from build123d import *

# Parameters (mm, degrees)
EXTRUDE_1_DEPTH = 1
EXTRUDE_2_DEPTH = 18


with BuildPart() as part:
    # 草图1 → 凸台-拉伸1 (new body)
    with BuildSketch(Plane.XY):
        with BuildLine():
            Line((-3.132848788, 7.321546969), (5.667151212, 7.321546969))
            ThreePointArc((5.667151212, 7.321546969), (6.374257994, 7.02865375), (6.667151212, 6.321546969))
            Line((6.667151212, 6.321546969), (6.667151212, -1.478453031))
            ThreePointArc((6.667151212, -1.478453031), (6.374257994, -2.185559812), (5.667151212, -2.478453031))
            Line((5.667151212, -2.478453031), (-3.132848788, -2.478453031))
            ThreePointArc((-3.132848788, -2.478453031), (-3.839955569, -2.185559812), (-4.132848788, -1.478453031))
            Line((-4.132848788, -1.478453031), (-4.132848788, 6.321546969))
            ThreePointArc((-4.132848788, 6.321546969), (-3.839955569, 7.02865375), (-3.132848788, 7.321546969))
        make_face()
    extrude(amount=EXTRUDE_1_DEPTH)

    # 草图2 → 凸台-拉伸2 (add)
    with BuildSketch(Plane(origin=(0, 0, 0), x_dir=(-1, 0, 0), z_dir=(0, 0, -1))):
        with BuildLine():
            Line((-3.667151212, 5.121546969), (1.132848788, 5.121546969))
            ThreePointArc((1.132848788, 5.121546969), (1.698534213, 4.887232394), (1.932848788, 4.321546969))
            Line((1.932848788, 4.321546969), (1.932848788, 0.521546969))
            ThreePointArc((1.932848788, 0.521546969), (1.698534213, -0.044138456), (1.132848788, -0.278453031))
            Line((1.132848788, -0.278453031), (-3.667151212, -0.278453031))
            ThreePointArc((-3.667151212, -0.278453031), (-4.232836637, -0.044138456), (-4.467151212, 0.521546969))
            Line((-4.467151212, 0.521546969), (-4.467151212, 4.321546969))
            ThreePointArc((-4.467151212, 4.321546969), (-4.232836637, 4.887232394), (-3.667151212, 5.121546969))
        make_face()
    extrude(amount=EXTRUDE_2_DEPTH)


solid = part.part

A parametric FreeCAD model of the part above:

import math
import FreeCAD as App
import Part
import Sketcher
from FreeCAD import Vector

doc = App.newDocument("Part")
params = doc.addObject("Spreadsheet::Sheet", "Params")
for row, (alias, value) in enumerate([
    ("sketch1_radius", "1 mm"),
    ("sketch1_width", "8.8 mm"),
    ("sketch1_height", "7.8 mm"),
    ("pad1_length", "1 mm"),
    ("sketch2_radius", "0.8 mm"),
    ("sketch2_width", "4.8 mm"),
    ("sketch2_height", "3.8 mm"),
    ("pad2_length", "18 mm"),
], start=1):
    params.set(f"A{row}", alias)
    params.set(f"B{row}", "=" + value)
    params.setAlias(f"B{row}", alias)

body = doc.addObject("PartDesign::Body", "Body")

# Sketch on XY plane
sketch1 = body.newObject("Sketcher::SketchObject", "Sketch")
sketch1.AttachmentSupport = (doc.getObject("XY_Plane"), [""])
sketch1.MapMode = "FlatFace"
sketch1.addGeometry(Part.LineSegment(Vector(5.7, 7.3, 0), Vector(-3.1, 7.3, 0)), False)
sketch1.addGeometry(Part.ArcOfCircle(Part.Circle(Vector(-3.1, 6.3, 0), Vector(0, 0, 1), 1), math.radians(90), math.radians(180)), False)
sketch1.addGeometry(Part.LineSegment(Vector(-4.1, 6.3, 0), Vector(-4.1, -1.5, 0)), False)
sketch1.addGeometry(Part.ArcOfCircle(Part.Circle(Vector(-3.1, -1.5, 0), Vector(0, 0, 1), 1), math.radians(-180), math.radians(-90)), False)
sketch1.addGeometry(Part.LineSegment(Vector(-3.1, -2.5, 0), Vector(5.7, -2.5, 0)), False)
sketch1.addGeometry(Part.ArcOfCircle(Part.Circle(Vector(5.7, -1.5, 0), Vector(0, 0, 1), 1), math.radians(-90), math.radians(0)), False)
sketch1.addGeometry(Part.LineSegment(Vector(6.7, -1.5, 0), Vector(6.7, 6.3, 0)), False)
sketch1.addGeometry(Part.ArcOfCircle(Part.Circle(Vector(5.7, 6.3, 0), Vector(0, 0, 1), 1), math.radians(0), math.radians(90)), False)
sketch1.addConstraint(Sketcher.Constraint("Tangent", 0, 2, 1, 1))
sketch1.addConstraint(Sketcher.Constraint("Tangent", 1, 2, 2, 1))
sketch1.addConstraint(Sketcher.Constraint("Tangent", 2, 2, 3, 1))
sketch1.addConstraint(Sketcher.Constraint("Tangent", 3, 2, 4, 1))
sketch1.addConstraint(Sketcher.Constraint("Tangent", 4, 2, 5, 1))
sketch1.addConstraint(Sketcher.Constraint("Tangent", 5, 2, 6, 1))
sketch1.addConstraint(Sketcher.Constraint("Tangent", 6, 2, 7, 1))
sketch1.addConstraint(Sketcher.Constraint("Tangent", 7, 2, 0, 1))
sketch1.addConstraint(Sketcher.Constraint("Horizontal", 0))
sketch1.addConstraint(Sketcher.Constraint("Vertical", 2))
sketch1.addConstraint(Sketcher.Constraint("Horizontal", 4))
sketch1.addConstraint(Sketcher.Constraint("Vertical", 6))
sketch1.addConstraint(Sketcher.Constraint("Equal", 1, 3))
sketch1.addConstraint(Sketcher.Constraint("Equal", 3, 5))
sketch1.addConstraint(Sketcher.Constraint("Equal", 5, 7))
sketch1.addConstraint(Sketcher.Constraint("Radius", 1, 1.0))
sketch1.addConstraint(Sketcher.Constraint("DistanceX", 0, 2, 0, 1, 8.8))
sketch1.addConstraint(Sketcher.Constraint("DistanceY", 2, 2, 2, 1, 7.8))
sketch1.addConstraint(Sketcher.Constraint("DistanceX", 1, 3, -1, 1, 3.132849))
sketch1.addConstraint(Sketcher.Constraint("DistanceY", -1, 1, 1, 3, 6.321547))
sketch1.setExpression("Constraints[15]", "Params.sketch1_radius")
sketch1.setExpression("Constraints[16]", "Params.sketch1_width")
sketch1.setExpression("Constraints[17]", "Params.sketch1_height")
pad1 = body.newObject("PartDesign::Pad", "Pad")
pad1.Profile = sketch1
pad1.setExpression("Length", "Params.pad1_length")

# Sketch on XY plane
sketch2 = body.newObject("Sketcher::SketchObject", "Sketch001")
sketch2.AttachmentSupport = (doc.getObject("XY_Plane"), [""])
sketch2.MapMode = "FlatFace"
sketch2.addGeometry(Part.LineSegment(Vector(-1.1, 5.1, 0), Vector(3.7, 5.1, 0)), False)
sketch2.addGeometry(Part.ArcOfCircle(Part.Circle(Vector(3.7, 4.3, 0), Vector(0, 0, 1), 0.8), math.radians(0), math.radians(90)), False)
sketch2.addGeometry(Part.LineSegment(Vector(4.5, 4.3, 0), Vector(4.5, 0.5, 0)), False)
sketch2.addGeometry(Part.ArcOfCircle(Part.Circle(Vector(3.7, 0.5, 0), Vector(0, 0, 1), 0.8), math.radians(-90), math.radians(0)), False)
sketch2.addGeometry(Part.LineSegment(Vector(3.7, -0.3, 0), Vector(-1.1, -0.3, 0)), False)
sketch2.addGeometry(Part.ArcOfCircle(Part.Circle(Vector(-1.1, 0.5, 0), Vector(0, 0, 1), 0.8), math.radians(180), math.radians(270)), False)
sketch2.addGeometry(Part.LineSegment(Vector(-1.9, 0.5, 0), Vector(-1.9, 4.3, 0)), False)
sketch2.addGeometry(Part.ArcOfCircle(Part.Circle(Vector(-1.1, 4.3, 0), Vector(0, 0, 1), 0.8), math.radians(90), math.radians(180)), False)
sketch2.addConstraint(Sketcher.Constraint("Tangent", 0, 2, 1, 2))
sketch2.addConstraint(Sketcher.Constraint("Tangent", 1, 1, 2, 1))
sketch2.addConstraint(Sketcher.Constraint("Tangent", 2, 2, 3, 2))
sketch2.addConstraint(Sketcher.Constraint("Tangent", 3, 1, 4, 1))
sketch2.addConstraint(Sketcher.Constraint("Tangent", 4, 2, 5, 2))
sketch2.addConstraint(Sketcher.Constraint("Tangent", 5, 1, 6, 1))
sketch2.addConstraint(Sketcher.Constraint("Tangent", 6, 2, 7, 2))
sketch2.addConstraint(Sketcher.Constraint("Tangent", 7, 1, 0, 1))
sketch2.addConstraint(Sketcher.Constraint("Horizontal", 0))
sketch2.addConstraint(Sketcher.Constraint("Vertical", 2))
sketch2.addConstraint(Sketcher.Constraint("Horizontal", 4))
sketch2.addConstraint(Sketcher.Constraint("Vertical", 6))
sketch2.addConstraint(Sketcher.Constraint("Equal", 1, 3))
sketch2.addConstraint(Sketcher.Constraint("Equal", 3, 5))
sketch2.addConstraint(Sketcher.Constraint("Equal", 5, 7))
sketch2.addConstraint(Sketcher.Constraint("Radius", 1, 0.8))
sketch2.addConstraint(Sketcher.Constraint("DistanceX", 0, 1, 0, 2, 4.8))
sketch2.addConstraint(Sketcher.Constraint("DistanceY", 2, 2, 2, 1, 3.8))
sketch2.addConstraint(Sketcher.Constraint("DistanceX", -1, 1, 1, 3, 3.667151))
sketch2.addConstraint(Sketcher.Constraint("DistanceY", -1, 1, 1, 3, 4.321547))
sketch2.setExpression("Constraints[15]", "Params.sketch2_radius")
sketch2.setExpression("Constraints[16]", "Params.sketch2_width")
sketch2.setExpression("Constraints[17]", "Params.sketch2_height")
pad2 = body.newObject("PartDesign::Pad", "Pad001")
pad2.Profile = sketch2
pad2.setExpression("Length", "Params.pad2_length")
pad2.Reversed = True

doc.recompute()
